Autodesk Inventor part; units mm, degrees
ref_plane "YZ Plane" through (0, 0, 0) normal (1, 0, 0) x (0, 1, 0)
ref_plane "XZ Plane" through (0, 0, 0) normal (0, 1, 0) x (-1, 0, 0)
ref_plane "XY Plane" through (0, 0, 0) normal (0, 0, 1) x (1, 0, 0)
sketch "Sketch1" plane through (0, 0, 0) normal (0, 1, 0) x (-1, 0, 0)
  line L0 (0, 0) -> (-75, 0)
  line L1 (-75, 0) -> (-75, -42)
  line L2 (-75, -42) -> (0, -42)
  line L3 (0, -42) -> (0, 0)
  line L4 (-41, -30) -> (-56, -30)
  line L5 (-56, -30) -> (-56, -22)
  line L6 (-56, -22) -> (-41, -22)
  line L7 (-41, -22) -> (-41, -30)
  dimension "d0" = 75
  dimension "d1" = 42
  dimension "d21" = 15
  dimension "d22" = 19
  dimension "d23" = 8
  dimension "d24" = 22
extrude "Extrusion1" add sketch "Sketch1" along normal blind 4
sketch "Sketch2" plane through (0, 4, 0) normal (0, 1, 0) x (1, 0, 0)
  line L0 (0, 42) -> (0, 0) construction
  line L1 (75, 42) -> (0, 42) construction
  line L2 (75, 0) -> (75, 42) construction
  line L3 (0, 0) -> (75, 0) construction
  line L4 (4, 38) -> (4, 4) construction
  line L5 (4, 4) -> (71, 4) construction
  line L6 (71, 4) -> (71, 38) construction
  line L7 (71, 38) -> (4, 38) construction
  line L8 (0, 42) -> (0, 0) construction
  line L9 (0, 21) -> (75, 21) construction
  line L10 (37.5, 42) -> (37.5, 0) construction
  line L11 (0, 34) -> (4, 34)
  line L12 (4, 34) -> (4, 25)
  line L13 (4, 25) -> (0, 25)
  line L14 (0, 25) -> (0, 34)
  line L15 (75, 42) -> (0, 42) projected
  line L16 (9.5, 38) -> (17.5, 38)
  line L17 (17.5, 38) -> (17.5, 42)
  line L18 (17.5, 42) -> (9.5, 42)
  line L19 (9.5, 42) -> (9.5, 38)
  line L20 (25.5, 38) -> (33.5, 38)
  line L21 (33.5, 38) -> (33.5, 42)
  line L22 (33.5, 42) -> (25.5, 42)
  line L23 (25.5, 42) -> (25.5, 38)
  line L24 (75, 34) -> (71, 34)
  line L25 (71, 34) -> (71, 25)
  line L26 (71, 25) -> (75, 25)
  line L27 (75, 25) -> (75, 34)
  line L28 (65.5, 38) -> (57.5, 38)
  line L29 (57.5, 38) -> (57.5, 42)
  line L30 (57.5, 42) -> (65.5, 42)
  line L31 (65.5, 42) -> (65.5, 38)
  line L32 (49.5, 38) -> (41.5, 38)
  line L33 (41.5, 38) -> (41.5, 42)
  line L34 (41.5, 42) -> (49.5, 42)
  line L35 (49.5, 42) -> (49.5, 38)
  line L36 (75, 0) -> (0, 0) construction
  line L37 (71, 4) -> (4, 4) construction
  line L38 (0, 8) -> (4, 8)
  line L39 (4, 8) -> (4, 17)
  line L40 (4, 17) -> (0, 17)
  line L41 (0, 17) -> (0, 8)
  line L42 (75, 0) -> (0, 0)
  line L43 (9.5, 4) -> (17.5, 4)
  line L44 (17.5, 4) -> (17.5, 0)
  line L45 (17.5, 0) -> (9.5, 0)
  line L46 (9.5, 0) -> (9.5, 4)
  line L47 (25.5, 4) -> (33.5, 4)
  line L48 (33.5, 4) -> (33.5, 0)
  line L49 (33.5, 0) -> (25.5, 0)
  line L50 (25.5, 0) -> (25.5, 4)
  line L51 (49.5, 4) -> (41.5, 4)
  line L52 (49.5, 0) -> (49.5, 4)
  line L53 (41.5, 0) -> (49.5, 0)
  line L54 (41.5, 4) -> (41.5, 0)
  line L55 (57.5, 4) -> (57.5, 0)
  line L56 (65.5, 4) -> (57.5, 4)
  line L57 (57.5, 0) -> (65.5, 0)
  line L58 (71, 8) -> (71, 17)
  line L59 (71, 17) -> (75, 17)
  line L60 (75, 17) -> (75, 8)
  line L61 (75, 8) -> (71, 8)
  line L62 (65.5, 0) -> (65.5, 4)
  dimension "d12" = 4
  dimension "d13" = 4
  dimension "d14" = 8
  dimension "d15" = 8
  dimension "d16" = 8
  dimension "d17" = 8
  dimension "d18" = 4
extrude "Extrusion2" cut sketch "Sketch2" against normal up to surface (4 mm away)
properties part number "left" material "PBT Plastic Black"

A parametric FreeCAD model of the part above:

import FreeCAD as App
import Part
import Sketcher

doc = App.newDocument("Part")
body = doc.addObject("PartDesign::Body", "Body")

# Sketch on XZ plane
sketch1 = body.newObject("Sketcher::SketchObject", "Sketch")
sketch1.AttachmentSupport = (doc.getObject("XZ_Plane"), [""])
sketch1.MapMode = "FlatFace"
sketch1.addGeometry(Part.LineSegment(App.Vector(0, -42, 0), App.Vector(0, 0, 0)), False)
sketch1.addGeometry(Part.LineSegment(App.Vector(0, 0, 0), App.Vector(75, 0, 0)), False)
sketch1.addGeometry(Part.LineSegment(App.Vector(75, 0, 0), App.Vector(75, -42, 0)), False)
sketch1.addGeometry(Part.LineSegment(App.Vector(75, -42, 0), App.Vector(0, -42, 0)), False)
sketch1.addGeometry(Part.LineSegment(App.Vector(41, -22, 0), App.Vector(41, -30, 0)), False)
sketch1.addGeometry(Part.LineSegment(App.Vector(41, -30, 0), App.Vector(56, -30, 0)), False)
sketch1.addGeometry(Part.LineSegment(App.Vector(56, -30, 0), App.Vector(56, -22, 0)), False)
sketch1.addGeometry(Part.LineSegment(App.Vector(56, -22, 0), App.Vector(41, -22, 0)), False)
sketch1.addConstraint(Sketcher.Constraint("Coincident", 0, 2, 1, 1))
sketch1.addConstraint(Sketcher.Constraint("Coincident", 1, 2, 2, 1))
sketch1.addConstraint(Sketcher.Constraint("Coincident", 2, 2, 3, 1))
sketch1.addConstraint(Sketcher.Constraint("Coincident", 3, 2, 0, 1))
sketch1.addConstraint(Sketcher.Constraint("Coincident", 4, 2, 5, 1))
sketch1.addConstraint(Sketcher.Constraint("Coincident", 5, 2, 6, 1))
sketch1.addConstraint(Sketcher.Constraint("Coincident", 6, 2, 7, 1))
sketch1.addConstraint(Sketcher.Constraint("Coincident", 7, 2, 4, 1))
sketch1.addConstraint(Sketcher.Constraint("Vertical", 0))
sketch1.addConstraint(Sketcher.Constraint("Horizontal", 1))
sketch1.addConstraint(Sketcher.Constraint("Vertical", 2))
sketch1.addConstraint(Sketcher.Constraint("Horizontal", 3))
sketch1.addConstraint(Sketcher.Constraint("Vertical", 4))
sketch1.addConstraint(Sketcher.Constraint("Horizontal", 5))
sketch1.addConstraint(Sketcher.Constraint("Vertical", 6))
sketch1.addConstraint(Sketcher.Constraint("Horizontal", 7))
sketch1.addConstraint(Sketcher.Constraint("Coincident", 0, 2, -1, 1))
sketch1.addConstraint(Sketcher.Constraint("DistanceX", 1, 1, 1, 2, 75.0))
sketch1.addConstraint(Sketcher.Constraint("DistanceX", 5, 1, 5, 2, 15.0))
sketch1.addConstraint(Sketcher.Constraint("DistanceY", 0, 1, 0, 2, 42.0))
sketch1.addConstraint(Sketcher.Constraint("DistanceY", 4, 2, 4, 1, 8.0))
sketch1.addConstraint(Sketcher.Constraint("DistanceY", 6, 2, -1, 1, 22.0))
sketch1.addConstraint(Sketcher.Constraint("DistanceX", 5, 2, 2, 2, 19.0))
pad1 = body.newObject("PartDesign::Pad", "Pad")
pad1.Profile = sketch1
pad1.Length = 4
pad1.Reversed = True

# Sketch on XZ plane
sketch2 = body.newObject("Sketcher::SketchObject", "Sketch001")
sketch2.AttachmentSupport = (doc.getObject("XZ_Plane"), [""])
sketch2.MapMode = "FlatFace"
sketch2.AttachmentOffset = App.Placement(App.Vector(0, 0, -4), App.Rotation())
sketch2.addGeometry(Part.LineSegment(App.Vector(4, -34, 0), App.Vector(0, -34, 0)), False)
sketch2.addGeometry(Part.LineSegment(App.Vector(0, -34, 0), App.Vector(0, -25, 0)), False)
sketch2.addGeometry(Part.LineSegment(App.Vector(0, -25, 0), App.Vector(4, -25, 0)), False)
sketch2.addGeometry(Part.LineSegment(App.Vector(4, -25, 0), App.Vector(4, -34, 0)), False)
sketch2.addGeometry(Part.LineSegment(App.Vector(65.5, -38, 0), App.Vector(65.5, -42, 0)), False)
sketch2.addGeometry(Part.LineSegment(App.Vector(65.5, -42, 0), App.Vector(57.5, -42, 0)), False)
sketch2.addGeometry(Part.LineSegment(App.Vector(57.5, -42, 0), App.Vector(57.5, -38, 0)), False)
sketch2.addGeometry(Part.LineSegment(App.Vector(57.5, -38, 0), App.Vector(65.5, -38, 0)), False)
sketch2.addGeometry(Part.LineSegment(App.Vector(17.5, -38, 0), App.Vector(17.5, -42, 0)), False)
sketch2.addGeometry(Part.LineSegment(App.Vector(17.5, -42, 0), App.Vector(9.5, -42, 0)), False)
sketch2.addGeometry(Part.LineSegment(App.Vector(9.5, -42, 0), App.Vector(9.5, -38, 0)), False)
sketch2.addGeometry(Part.LineSegment(App.Vector(9.5, -38, 0), App.Vector(17.5, -38, 0)), False)
sketch2.addGeometry(Part.LineSegment(App.Vector(33.5, -38, 0), App.Vector(33.5, -42, 0)), False)
sketch2.addGeometry(Part.LineSegment(App.Vector(33.5, -42, 0), App.Vector(25.5, -42, 0)), False)
sketch2.addGeometry(Part.LineSegment(App.Vector(25.5, -42, 0), App.Vector(25.5, -38, 0)), False)
sketch2.addGeometry(Part.LineSegment(App.Vector(25.5, -38, 0), App.Vector(33.5, -38, 0)), False)
sketch2.addGeometry(Part.LineSegment(App.Vector(49.5, -38, 0), App.Vector(49.5, -42, 0)), False)
sketch2.addGeometry(Part.LineSegment(App.Vector(49.5, -42, 0), App.Vector(41.5, -42, 0)), False)
sketch2.addGeometry(Part.LineSegment(App.Vector(41.5, -42, 0), App.Vector(41.5, -38, 0)), False)
sketch2.addGeometry(Part.LineSegment(App.Vector(41.5, -38, 0), App.Vector(49.5, -38, 0)), False)
sketch2.addGeometry(Part.LineSegment(App.Vector(75, -25, 0), App.Vector(75, -34, 0)), False)
sketch2.addGeometry(Part.LineSegment(App.Vector(75, -34, 0), App.Vector(71, -34, 0)), False)
sketch2.addGeometry(Part.LineSegment(App.Vector(71, -34, 0), App.Vector(71, -25, 0)), False)
sketch2.addGeometry(Part.LineSegment(App.Vector(71, -25, 0), App.Vector(75, -25, 0)), False)
sketch2.addGeometry(Part.LineSegment(App.Vector(0, -17, 0), App.Vector(0, -8, 0)), False)
sketch2.addGeometry(Part.LineSegment(App.Vector(0, -8, 0), App.Vector(4, -8, 0)), False)
sketch2.addGeometry(Part.LineSegment(App.Vector(4, -8, 0), App.Vector(4, -17, 0)), False)
sketch2.addGeometry(Part.LineSegment(App.Vector(4, -17, 0), App.Vector(0, -17, 0)), False)
sketch2.addGeometry(Part.LineSegment(App.Vector(9.5, 0, 0), App.Vector(17.5, 0, 0)), False)
sketch2.addGeometry(Part.LineSegment(App.Vector(17.5, 0, 0), App.Vector(17.5, -4, 0)), False)
sketch2.addGeometry(Part.LineSegment(App.Vector(17.5, -4, 0), App.Vector(9.5, -4, 0)), False)
sketch2.addGeometry(Part.LineSegment(App.Vector(9.5, -4, 0), App.Vector(9.5, 0, 0)), False)
sketch2.addGeometry(Part.LineSegment(App.Vector(25.5, 0, 0), App.Vector(33.5, 0, 0)), False)
sketch2.addGeometry(Part.LineSegment(App.Vector(33.5, 0, 0), App.Vector(33.5, -4, 0)), False)
sketch2.addGeometry(Part.LineSegment(App.Vector(33.5, -4, 0), App.Vector(25.5, -4, 0)), False)
sketch2.addGeometry(Part.LineSegment(App.Vector(25.5, -4, 0), App.Vector(25.5, 0, 0)), False)
sketch2.addGeometry(Part.LineSegment(App.Vector(41.5, 0, 0), App.Vector(49.5, 0, 0)), False)
sketch2.addGeometry(Part.LineSegment(App.Vector(49.5, 0, 0), App.Vector(49.5, -4, 0)), False)
sketch2.addGeometry(Part.LineSegment(App.Vector(49.5, -4, 0), App.Vector(41.5, -4, 0)), False)
sketch2.addGeometry(Part.LineSegment(App.Vector(41.5, -4, 0), App.Vector(41.5, 0, 0)), False)
sketch2.addGeometry(Part.LineSegment(App.Vector(57.5, 0, 0), App.Vector(65.5, 0, 0)), False)
sketch2.addGeometry(Part.LineSegment(App.Vector(65.5, 0, 0), App.Vector(65.5, -4, 0)), False)
sketch2.addGeometry(Part.LineSegment(App.Vector(65.5, -4, 0), App.Vector(57.5, -4, 0)), False)
sketch2.addGeometry(Part.LineSegment(App.Vector(57.5, -4, 0), App.Vector(57.5, 0, 0)), False)
sketch2.addGeometry(Part.LineSegment(App.Vector(71, -17, 0), App.Vector(71, -8, 0)), False)
sketch2.addGeometry(Part.LineSegment(App.Vector(71, -8, 0), App.Vector(75, -8, 0)), False)
sketch2.addGeometry(Part.LineSegment(App.Vector(75, -8, 0), App.Vector(75, -17, 0)), False)
sketch2.addGeometry(Part.LineSegment(App.Vector(75, -17, 0), App.Vector(71, -17, 0)), False)
sketch2.addConstraint(Sketcher.Constraint("Coincident", 0, 2, 1, 1))
sketch2.addConstraint(Sketcher.Constraint("Coincident", 1, 2, 2, 1))
sketch2.addConstraint(Sketcher.Constraint("Coincident", 2, 2, 3, 1))
sketch2.addConstraint(Sketcher.Constraint("Coincident", 3, 2, 0, 1))
sketch2.addConstraint(Sketcher.Constraint("Coincident", 4, 2, 5, 1))
sketch2.addConstraint(Sketcher.Constraint("Coincident", 5, 2, 6, 1))
sketch2.addConstraint(Sketcher.Constraint("Coincident", 6, 2, 7, 1))
sketch2.addConstraint(Sketcher.Constraint("Coincident", 7, 2, 4, 1))
sketch2.addConstraint(Sketcher.Constraint("Coincident", 8, 2, 9, 1))
sketch2.addConstraint(Sketcher.Constraint("Coincident", 9, 2, 10, 1))
sketch2.addConstraint(Sketcher.Constraint("Coincident", 10, 2, 11, 1))
sketch2.addConstraint(Sketcher.Constraint("Coincident", 11, 2, 8, 1))
sketch2.addConstraint(Sketcher.Constraint("Coincident", 12, 2, 13, 1))
sketch2.addConstraint(Sketcher.Constraint("Coincident", 13, 2, 14, 1))
sketch2.addConstraint(Sketcher.Constraint("Coincident", 14, 2, 15, 1))
sketch2.addConstraint(Sketcher.Constraint("Coincident", 15, 2, 12, 1))
sketch2.addConstraint(Sketcher.Constraint("Coincident", 16, 2, 17, 1))
sketch2.addConstraint(Sketcher.Constraint("Coincident", 17, 2, 18, 1))
sketch2.addConstraint(Sketcher.Constraint("Coincident", 18, 2, 19, 1))
sketch2.addConstraint(Sketcher.Constraint("Coincident", 19, 2, 16, 1))
sketch2.addConstraint(Sketcher.Constraint("Coincident", 20, 2, 21, 1))
sketch2.addConstraint(Sketcher.Constraint("Coincident", 21, 2, 22, 1))
sketch2.addConstraint(Sketcher.Constraint("Coincident", 22, 2, 23, 1))
sketch2.addConstraint(Sketcher.Constraint("Coincident", 23, 2, 20, 1))
sketch2.addConstraint(Sketcher.Constraint("Coincident", 24, 2, 25, 1))
sketch2.addConstraint(Sketcher.Constraint("Coincident", 25, 2, 26, 1))
sketch2.addConstraint(Sketcher.Constraint("Coincident", 26, 2, 27, 1))
sketch2.addConstraint(Sketcher.Constraint("Coincident", 27, 2, 24, 1))
sketch2.addConstraint(Sketcher.Constraint("Coincident", 28, 2, 29, 1))
sketch2.addConstraint(Sketcher.Constraint("Coincident", 29, 2, 30, 1))
sketch2.addConstraint(Sketcher.Constraint("Coincident", 30, 2, 31, 1))
sketch2.addConstraint(Sketcher.Constraint("Coincident", 31, 2, 28, 1))
sketch2.addConstraint(Sketcher.Constraint("Coincident", 32, 2, 33, 1))
sketch2.addConstraint(Sketcher.Constraint("Coincident", 33, 2, 34, 1))
sketch2.addConstraint(Sketcher.Constraint("Coincident", 34, 2, 35, 1))
sketch2.addConstraint(Sketcher.Constraint("Coincident", 35, 2, 32, 1))
sketch2.addConstraint(Sketcher.Constraint("Coincident", 36, 2, 37, 1))
sketch2.addConstraint(Sketcher.Constraint("Coincident", 37, 2, 38, 1))
sketch2.addConstraint(Sketcher.Constraint("Coincident", 38, 2, 39, 1))
sketch2.addConstraint(Sketcher.Constraint("Coincident", 39, 2, 36, 1))
sketch2.addConstraint(Sketcher.Constraint("Coincident", 40, 2, 41, 1))
sketch2.addConstraint(Sketcher.Constraint("Coincident", 41, 2, 42, 1))
sketch2.addConstraint(Sketcher.Constraint("Coincident", 42, 2, 43, 1))
sketch2.addConstraint(Sketcher.Constraint("Coincident", 43, 2, 40, 1))
sketch2.addConstraint(Sketcher.Constraint("Coincident", 44, 2, 45, 1))
sketch2.addConstraint(Sketcher.Constraint("Coincident", 45, 2, 46, 1))
sketch2.addConstraint(Sketcher.Constraint("Coincident", 46, 2, 47, 1))
sketch2.addConstraint(Sketcher.Constraint("Coincident", 47, 2, 44, 1))
sketch2.addConstraint(Sketcher.Constraint("Horizontal", 0))
sketch2.addConstraint(Sketcher.Constraint("Vertical", 1))
sketch2.addConstraint(Sketcher.Constraint("Horizontal", 2))
sketch2.addConstraint(Sketcher.Constraint("Vertical", 3))
sketch2.addConstraint(Sketcher.Constraint("Vertical", 4))
sketch2.addConstraint(Sketcher.Constraint("Horizontal", 5))
sketch2.addConstraint(Sketcher.Constraint("Vertical", 6))
sketch2.addConstraint(Sketcher.Constraint("Horizontal", 7))
sketch2.addConstraint(Sketcher.Constraint("Vertical", 8))
sketch2.addConstraint(Sketcher.Constraint("Horizontal", 9))
sketch2.addConstraint(Sketcher.Constraint("Vertical", 10))
sketch2.addConstraint(Sketcher.Constraint("Horizontal", 11))
sketch2.addConstraint(Sketcher.Constraint("Vertical", 12))
sketch2.addConstraint(Sketcher.Constraint("Horizontal", 13))
sketch2.addConstraint(Sketcher.Constraint("Vertical", 14))
sketch2.addConstraint(Sketcher.Constraint("Horizontal", 15))
sketch2.addConstraint(Sketcher.Constraint("Vertical", 16))
sketch2.addConstraint(Sketcher.Constraint("Horizontal", 17))
sketch2.addConstraint(Sketcher.Constraint("Vertical", 18))
sketch2.addConstraint(Sketcher.Constraint("Horizontal", 19))
sketch2.addConstraint(Sketcher.Constraint("Vertical", 20))
sketch2.addConstraint(Sketcher.Constraint("Horizontal", 21))
sketch2.addConstraint(Sketcher.Constraint("Vertical", 22))
sketch2.addConstraint(Sketcher.Constraint("Horizontal", 23))
sketch2.addConstraint(Sketcher.Constraint("Vertical", 24))
sketch2.addConstraint(Sketcher.Constraint("Horizontal", 25))
sketch2.addConstraint(Sketcher.Constraint("Vertical", 26))
sketch2.addConstraint(Sketcher.Constraint("Horizontal", 27))
sketch2.addConstraint(Sketcher.Constraint("Horizontal", 28))
sketch2.addConstraint(Sketcher.Constraint("Vertical", 29))
sketch2.addConstraint(Sketcher.Constraint("Horizontal", 30))
sketch2.addConstraint(Sketcher.Constraint("Vertical", 31))
sketch2.addConstraint(Sketcher.Constraint("Horizontal", 32))
sketch2.addConstraint(Sketcher.Constraint("Vertical", 33))
sketch2.addConstraint(Sketcher.Constraint("Horizontal", 34))
sketch2.addConstraint(Sketcher.Constraint("Vertical", 35))
sketch2.addConstraint(Sketcher.Constraint("Horizontal", 36))
sketch2.addConstraint(Sketcher.Constraint("Vertical", 37))
sketch2.addConstraint(Sketcher.Constraint("Horizontal", 38))
sketch2.addConstraint(Sketcher.Constraint("Vertical", 39))
sketch2.addConstraint(Sketcher.Constraint("Horizontal", 40))
sketch2.addConstraint(Sketcher.Constraint("Vertical", 41))
sketch2.addConstraint(Sketcher.Constraint("Horizontal", 42))
sketch2.addConstraint(Sketcher.Constraint("Vertical", 43))
sketch2.addConstraint(Sketcher.Constraint("Vertical", 44))
sketch2.addConstraint(Sketcher.Constraint("Horizontal", 45))
sketch2.addConstraint(Sketcher.Constraint("Vertical", 46))
sketch2.addConstraint(Sketcher.Constraint("Horizontal", 47))
sketch2.addConstraint(Sketcher.Constraint("PointOnObject", 0, 2, -2))
sketch2.addConstraint(Sketcher.Constraint("PointOnObject", 24, 2, -2))
sketch2.addConstraint(Sketcher.Constraint("PointOnObject", 28, 2, -1))
sketch2.addConstraint(Sketcher.Constraint("PointOnObject", 32, 2, -1))
sketch2.addConstraint(Sketcher.Constraint("PointOnObject", 36, 2, -1))
sketch2.addConstraint(Sketcher.Constraint("PointOnObject", 40, 2, -1))
sketch2.addConstraint(Sketcher.Constraint("Horizontal", 5, 2, 8, 2))
sketch2.addConstraint(Sketcher.Constraint("Horizontal", 7, 2, 10, 2))
sketch2.addConstraint(Sketcher.Constraint("Horizontal", 9, 2, 12, 2))
sketch2.addConstraint(Sketcher.Constraint("Horizontal", 11, 2, 14, 2))
sketch2.addConstraint(Sketcher.Constraint("Horizontal", 13, 2, 16, 2))
sketch2.addConstraint(Sketcher.Constraint("Horizontal", 15, 2, 18, 2))
sketch2.addConstraint(Sketcher.Constraint("Horizontal", 3, 2, 20, 2))
sketch2.addConstraint(Sketcher.Constraint("Horizontal", 2, 2, 22, 2))
sketch2.addConstraint(Sketcher.Constraint("Horizontal", 30, 2, 33, 2))
sketch2.addConstraint(Sketcher.Constraint("Horizontal", 34, 2, 37, 2))
sketch2.addConstraint(Sketcher.Constraint("Horizontal", 38, 2, 41, 2))
sketch2.addConstraint(Sketcher.Constraint("Horizontal", 25, 2, 44, 2))
sketch2.addConstraint(Sketcher.Constraint("Horizontal", 27, 2, 46, 2))
sketch2.addConstraint(Sketcher.Constraint("Vertical", 3, 2, 25, 2))
sketch2.addConstraint(Sketcher.Constraint("Vertical", 11, 2, 28, 2))
sketch2.addConstraint(Sketcher.Constraint("Vertical", 10, 2, 30, 2))
sketch2.addConstraint(Sketcher.Constraint("Vertical", 15, 2, 32, 2))
sketch2.addConstraint(Sketcher.Constraint("Vertical", 14, 2, 34, 2))
sketch2.addConstraint(Sketcher.Constraint("Vertical", 19, 2, 36, 2))
sketch2.addConstraint(Sketcher.Constraint("Vertical", 18, 2, 38, 2))
sketch2.addConstraint(Sketcher.Constraint("Vertical", 7, 2, 40, 2))
sketch2.addConstraint(Sketcher.Constraint("Vertical", 6, 2, 42, 2))
sketch2.addConstraint(Sketcher.Constraint("Vertical", 22, 2, 44, 2))
sketch2.addConstraint(Sketcher.Constraint("Vertical", 23, 2, 45, 2))
sketch2.addConstraint(Sketcher.Constraint("Equal", 7, 9))
sketch2.addConstraint(Sketcher.Constraint("Equal", 11, 13))
sketch2.addConstraint(Sketcher.Constraint("Equal", 15, 17))
sketch2.addConstraint(Sketcher.Constraint("Equal", 2, 21))
sketch2.addConstraint(Sketcher.Constraint("Equal", 47, 4))
sketch2.addConstraint(Sketcher.Constraint("Equal", 22, 24))
sketch2.addConstraint(Sketcher.Constraint("Equal", 18, 29))
sketch2.addConstraint(Sketcher.Constraint("DistanceX", 0, 2, 0, 1, 4.0))
sketch2.addConstraint(Sketcher.Constraint("DistanceX", 5, 2, 5, 1, 8.0))
sketch2.addConstraint(Sketcher.Constraint("DistanceY", 24, 2, -1, 1, 8.0))
sketch2.addConstraint(Sketcher.Constraint("DistanceY", 4, 2, 3, 2, 8.0))
sketch2.addConstraint(Sketcher.Constraint("DistanceX", 8, 2, 13, 2, 8.0))
sketch2.addConstraint(Sketcher.Constraint("DistanceX", 16, 2, 5, 2, 8.0))
sketch2.addConstraint(Sketcher.Constraint("DistanceX", 12, 2, 17, 2, 8.0))
sketch2.addConstraint(Sketcher.Constraint("DistanceY", 2, 2, 26, 2, 8.0))
sketch2.addConstraint(Sketcher.Constraint("DistanceY", 1, 1, 1, 2, 9.0))
sketch2.addConstraint(Sketcher.Constraint("DistanceX", -1, 1, 20, 2, 75.0))
sketch2.addConstraint(Sketcher.Constraint("DistanceX", -1, 1, 4, 2, 65.5))
pocket1 = body.newObject("PartDesign::Pocket", "Pocket")
pocket1.Profile = sketch2
pocket1.Length = 4
pocket1.Reversed = True

doc.recompute()
